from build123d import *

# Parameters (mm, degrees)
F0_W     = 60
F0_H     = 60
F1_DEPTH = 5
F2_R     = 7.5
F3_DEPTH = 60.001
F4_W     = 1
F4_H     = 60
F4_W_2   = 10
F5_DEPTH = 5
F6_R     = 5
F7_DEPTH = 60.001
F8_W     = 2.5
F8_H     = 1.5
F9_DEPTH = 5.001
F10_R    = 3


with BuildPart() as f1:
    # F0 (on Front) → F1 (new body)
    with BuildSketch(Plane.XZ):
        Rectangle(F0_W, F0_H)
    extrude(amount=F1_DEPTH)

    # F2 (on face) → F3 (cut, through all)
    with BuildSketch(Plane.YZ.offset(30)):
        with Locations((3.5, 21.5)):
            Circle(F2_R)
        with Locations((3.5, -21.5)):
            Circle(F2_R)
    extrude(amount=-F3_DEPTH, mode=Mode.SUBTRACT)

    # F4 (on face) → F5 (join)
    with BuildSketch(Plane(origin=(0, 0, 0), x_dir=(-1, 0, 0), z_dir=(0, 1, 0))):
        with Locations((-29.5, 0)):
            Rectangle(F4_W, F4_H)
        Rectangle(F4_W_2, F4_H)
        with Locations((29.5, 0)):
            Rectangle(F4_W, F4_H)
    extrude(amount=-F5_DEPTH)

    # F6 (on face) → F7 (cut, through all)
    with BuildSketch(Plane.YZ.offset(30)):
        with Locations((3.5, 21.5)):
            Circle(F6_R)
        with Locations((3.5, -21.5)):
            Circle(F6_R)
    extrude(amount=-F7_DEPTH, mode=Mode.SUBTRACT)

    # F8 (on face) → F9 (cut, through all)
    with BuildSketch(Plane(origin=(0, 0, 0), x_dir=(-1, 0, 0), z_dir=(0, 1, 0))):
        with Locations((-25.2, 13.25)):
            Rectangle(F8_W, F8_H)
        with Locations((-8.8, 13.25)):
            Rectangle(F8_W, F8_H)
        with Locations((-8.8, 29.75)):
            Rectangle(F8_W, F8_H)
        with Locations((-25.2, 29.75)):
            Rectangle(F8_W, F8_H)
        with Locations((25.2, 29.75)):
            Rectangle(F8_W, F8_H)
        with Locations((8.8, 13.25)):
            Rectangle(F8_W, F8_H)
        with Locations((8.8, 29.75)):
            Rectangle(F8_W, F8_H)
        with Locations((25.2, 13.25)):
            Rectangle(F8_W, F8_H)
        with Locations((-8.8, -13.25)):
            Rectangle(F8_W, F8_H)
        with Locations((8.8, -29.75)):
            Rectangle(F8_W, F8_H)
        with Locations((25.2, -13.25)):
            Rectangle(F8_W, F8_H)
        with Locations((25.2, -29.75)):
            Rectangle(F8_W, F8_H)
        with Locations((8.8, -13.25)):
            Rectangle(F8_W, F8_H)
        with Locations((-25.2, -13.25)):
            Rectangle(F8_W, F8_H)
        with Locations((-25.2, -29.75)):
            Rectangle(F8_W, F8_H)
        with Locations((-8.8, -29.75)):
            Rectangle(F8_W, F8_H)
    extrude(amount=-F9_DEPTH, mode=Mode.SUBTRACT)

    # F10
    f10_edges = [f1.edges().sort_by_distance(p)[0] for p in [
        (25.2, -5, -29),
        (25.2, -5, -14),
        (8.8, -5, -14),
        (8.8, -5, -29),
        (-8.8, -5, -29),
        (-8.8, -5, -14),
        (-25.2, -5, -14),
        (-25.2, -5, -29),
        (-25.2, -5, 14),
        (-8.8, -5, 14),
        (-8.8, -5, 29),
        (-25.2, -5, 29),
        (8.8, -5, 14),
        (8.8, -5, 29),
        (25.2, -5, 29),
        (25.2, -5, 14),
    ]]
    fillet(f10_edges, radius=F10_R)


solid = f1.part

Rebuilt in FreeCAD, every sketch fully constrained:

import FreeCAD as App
import Part
import Sketcher
from FreeCAD import Vector
Q = App.Units.Quantity


def edges_at(feature, points):
    """Names of the edges that pass closest to the given points."""
    edges = feature.Shape.Edges
    near = lambda p: min(range(len(edges)), key=lambda i: edges[i].distToShape(Part.Vertex(*p))[0])
    return sorted({f"Edge{near(p) + 1}" for p in points})


def add_polygon(sketch, points):
    """Adds a closed chain of lines whose ends are joined by coincident constraints."""
    first, n = sketch.GeometryCount, len(points)
    for a, b in zip(points, points[1:] + points[:1]):
        sketch.addGeometry(Part.LineSegment(App.Vector(*a, 0), App.Vector(*b, 0)), False)
    for i in range(n):
        sketch.addConstraint(Sketcher.Constraint("Coincident", first + i, 2, first + (i + 1) % n, 1))

doc = App.newDocument("Part")
body = doc.addObject("PartDesign::Body", "Body")

# Sketch on XZ plane
sketch1 = doc.addObject("Sketcher::SketchObject", "Sketch")
body.addObject(sketch1)
sketch1.AttachmentSupport = (doc.XZ_Plane, [""])
sketch1.MapMode = "FlatFace"
add_polygon(sketch1, [(-30, 30), (-30, -30), (30, -30), (30, 30)])  # lines 0-3
sketch1.addConstraint([
    Sketcher.Constraint("Vertical", 0),
    Sketcher.Constraint("Horizontal", 1),
    Sketcher.Constraint("Vertical", 2),
    Sketcher.Constraint("Horizontal", 3),
    Sketcher.Constraint("Symmetric", 0, 2, 2, 2, -1, 1),
    Sketcher.Constraint("Equal", 3, 0),
    Sketcher.Constraint("DistanceX", 1, 1, 1, 2, Q("60 mm")),
])
pad1 = doc.addObject("PartDesign::Pad", "Pad")
body.addObject(pad1)
pad1.Profile = sketch1
pad1.Length = 5

# Sketch on YZ plane
sketch2 = doc.addObject("Sketcher::SketchObject", "Sketch001")
body.addObject(sketch2)
sketch2.AttachmentSupport = (doc.YZ_Plane, [""])
sketch2.MapMode = "FlatFace"
sketch2.AttachmentOffset = App.Placement(Vector(0, 0, 30), App.Rotation())
sketch2.addGeometry([
    Part.Circle(Vector(4, 22, 0), Vector(0, 0, 1), 8),
    Part.Circle(Vector(4, -22, 0), Vector(0, 0, 1), 8),
], False)
sketch2.addConstraint([
    Sketcher.Constraint("Equal", 0, 1),
    Sketcher.Constraint("Symmetric", 0, 3, 1, 3, -1),
    Sketcher.Constraint("Diameter", 0, Q("15 mm")),
    Sketcher.Constraint("DistanceY", 1, 3, 0, 3, Q("43 mm")),
    Sketcher.Constraint("DistanceX", -1, 1, 0, 3, Q("3.5 mm")),
])
pocket1 = doc.addObject("PartDesign::Pocket", "Pocket")
body.addObject(pocket1)
pocket1.Profile = sketch2
pocket1.Type = "ThroughAll"

# Sketch on XZ plane
sketch3 = doc.addObject("Sketcher::SketchObject", "Sketch002")
body.addObject(sketch3)
sketch3.AttachmentSupport = (doc.XZ_Plane, [""])
sketch3.MapMode = "FlatFace"
add_polygon(sketch3, [(30, 30), (30, -30), (29, -30), (29, 30)])  # lines 0-3
add_polygon(sketch3, [(5, 30), (5, -30), (-5, -30), (-5, 30)])  # lines 4-7
add_polygon(sketch3, [(-29, 30), (-29, -30), (-30, -30), (-30, 30)])  # lines 8-11
sketch3.addConstraint([
    Sketcher.Constraint("Vertical", 0),
    Sketcher.Constraint("Horizontal", 1),
    Sketcher.Constraint("Vertical", 2),
    Sketcher.Constraint("Horizontal", 3),
    Sketcher.Constraint("Vertical", 4),
    Sketcher.Constraint("Horizontal", 5),
    Sketcher.Constraint("Vertical", 6),
    Sketcher.Constraint("Horizontal", 7),
    Sketcher.Constraint("Vertical", 8),
    Sketcher.Constraint("Horizontal", 9),
    Sketcher.Constraint("Vertical", 10),
    Sketcher.Constraint("Horizontal", 11),
    Sketcher.Constraint("Symmetric", 4, 2, 6, 2, -1, 1),
    Sketcher.Constraint("Symmetric", 2, 2, 8, 2, -1, 1),
    Sketcher.Constraint("Symmetric", 0, 2, 10, 2, -1, 1),
    Sketcher.Constraint("Horizontal", 1, 2, 4, 2),
    Sketcher.Constraint("Horizontal", 3, 2, 6, 2),
    Sketcher.Constraint("DistanceX", 1, 2, 1, 1, Q("1 mm")),
    Sketcher.Constraint("DistanceX", 5, 2, 5, 1, Q("10 mm")),
    Sketcher.Constraint("DistanceY", 0, 2, 0, 1, Q("60 mm")),
    Sketcher.Constraint("DistanceX", -1, 1, 0, 2, Q("30 mm")),
])
pad2 = doc.addObject("PartDesign::Pad", "Pad001")
body.addObject(pad2)
pad2.Profile = sketch3
pad2.Length = 5

# Sketch on YZ plane
sketch4 = doc.addObject("Sketcher::SketchObject", "Sketch003")
body.addObject(sketch4)
sketch4.AttachmentSupport = (doc.YZ_Plane, [""])
sketch4.MapMode = "FlatFace"
sketch4.AttachmentOffset = App.Placement(Vector(0, 0, 30), App.Rotation())
sketch4.addGeometry([
    Part.Circle(Vector(4, 22, 0), Vector(0, 0, 1), 5),
    Part.Circle(Vector(4, -22, 0), Vector(0, 0, 1), 5),
], False)
sketch4.addConstraint([
    Sketcher.Constraint("Equal", 0, 1),
    Sketcher.Constraint("Symmetric", 0, 3, 1, 3, -1),
    Sketcher.Constraint("Diameter", 0, Q("10 mm")),
    Sketcher.Constraint("DistanceY", 1, 3, 0, 3, Q("43 mm")),
    Sketcher.Constraint("DistanceX", -1, 1, 0, 3, Q("3.5 mm")),
])
pocket2 = doc.addObject("PartDesign::Pocket", "Pocket001")
body.addObject(pocket2)
pocket2.Profile = sketch4
pocket2.Type = "ThroughAll"

# Sketch on XZ plane
sketch5 = doc.addObject("Sketcher::SketchObject", "Sketch004")
body.addObject(sketch5)
sketch5.AttachmentSupport = (doc.XZ_Plane, [""])
sketch5.MapMode = "FlatFace"
add_polygon(sketch5, [(26.4, 14), (26.4, 12.5), (23.9, 12.5), (23.9, 14)])  # lines 0-3
add_polygon(sketch5, [(10.1, 14), (10.1, 12.5), (7.5, 12.5), (7.5, 14)])  # lines 4-7
add_polygon(sketch5, [(10.1, 30.5), (10.1, 29), (7.5, 29), (7.5, 30.5)])  # lines 8-11
add_polygon(sketch5, [(26.4, 30.5), (26.4, 29), (23.9, 29), (23.9, 30.5)])  # lines 12-15
add_polygon(sketch5, [(-23.9, 30.5), (-23.9, 29), (-26.4, 29), (-26.4, 30.5)])  # lines 16-19
add_polygon(sketch5, [(-7.5, 14), (-7.5, 12.5), (-10.1, 12.5), (-10.1, 14)])  # lines 20-23
add_polygon(sketch5, [(-7.5, 30.5), (-7.5, 29), (-10.1, 29), (-10.1, 30.5)])  # lines 24-27
add_polygon(sketch5, [(-23.9, 14), (-23.9, 12.5), (-26.4, 12.5), (-26.4, 14)])  # lines 28-31
add_polygon(sketch5, [(10.1, -12.5), (10.1, -14), (7.5, -14), (7.5, -12.5)])  # lines 32-35
add_polygon(sketch5, [(-7.5, -29), (-7.5, -30.5), (-10.1, -30.5), (-10.1, -29)])  # lines 36-39
add_polygon(sketch5, [(-23.9, -12.5), (-23.9, -14), (-26.4, -14), (-26.4, -12.5)])  # lines 40-43
add_polygon(sketch5, [(-23.9, -29), (-23.9, -30.5), (-26.4, -30.5), (-26.4, -29)])  # lines 44-47
add_polygon(sketch5, [(-7.5, -12.5), (-7.5, -14), (-10.1, -14), (-10.1, -12.5)])  # lines 48-51
add_polygon(sketch5, [(26.4, -12.5), (26.4, -14), (23.9, -14), (23.9, -12.5)])  # lines 52-55
add_polygon(sketch5, [(26.4, -29), (26.4, -30.5), (23.9, -30.5), (23.9, -29)])  # lines 56-59
add_polygon(sketch5, [(10.1, -29), (10.1, -30.5), (7.5, -30.5), (7.5, -29)])  # lines 60-63
sketch5.addConstraint([
    Sketcher.Constraint("Vertical", 0),
    Sketcher.Constraint("Horizontal", 1),
    Sketcher.Constraint("Vertical", 2),
    Sketcher.Constraint("Horizontal", 3),
    Sketcher.Constraint("Vertical", 4),
    Sketcher.Constraint("Horizontal", 5),
    Sketcher.Constraint("Vertical", 6),
    Sketcher.Constraint("Horizontal", 7),
    Sketcher.Constraint("Vertical", 8),
    Sketcher.Constraint("Horizontal", 9),
    Sketcher.Constraint("Vertical", 10),
    Sketcher.Constraint("Horizontal", 11),
    Sketcher.Constraint("Vertical", 12),
    Sketcher.Constraint("Horizontal", 13),
    Sketcher.Constraint("Vertical", 14),
    Sketcher.Constraint("Horizontal", 15),
    Sketcher.Constraint("Vertical", 16),
    Sketcher.Constraint("Horizontal", 17),
    Sketcher.Constraint("Vertical", 18),
    Sketcher.Constraint("Horizontal", 19),
    Sketcher.Constraint("Vertical", 20),
    Sketcher.Constraint("Horizontal", 21),
    Sketcher.Constraint("Vertical", 22),
    Sketcher.Constraint("Horizontal", 23),
    Sketcher.Constraint("Vertical", 24),
    Sketcher.Constraint("Horizontal", 25),
    Sketcher.Constraint("Vertical", 26),
    Sketcher.Constraint("Horizontal", 27),
    Sketcher.Constraint("Vertical", 28),
    Sketcher.Constraint("Horizontal", 29),
    Sketcher.Constraint("Vertical", 30),
    Sketcher.Constraint("Horizontal", 31),
    Sketcher.Constraint("Vertical", 32),
    Sketcher.Constraint("Horizontal", 33),
    Sketcher.Constraint("Vertical", 34),
    Sketcher.Constraint("Horizontal", 35),
    Sketcher.Constraint("Vertical", 36),
    Sketcher.Constraint("Horizontal", 37),
    Sketcher.Constraint("Vertical", 38),
    Sketcher.Constraint("Horizontal", 39),
    Sketcher.Constraint("Vertical", 40),
    Sketcher.Constraint("Horizontal", 41),
    Sketcher.Constraint("Vertical", 42),
    Sketcher.Constraint("Horizontal", 43),
    Sketcher.Constraint("Vertical", 44),
    Sketcher.Constraint("Horizontal", 45),
    Sketcher.Constraint("Vertical", 46),
    Sketcher.Constraint("Horizontal", 47),
    Sketcher.Constraint("Vertical", 48),
    Sketcher.Constraint("Horizontal", 49),
    Sketcher.Constraint("Vertical", 50),
    Sketcher.Constraint("Horizontal", 51),
    Sketcher.Constraint("Vertical", 52),
    Sketcher.Constraint("Horizontal", 53),
    Sketcher.Constraint("Vertical", 54),
    Sketcher.Constraint("Horizontal", 55),
    Sketcher.Constraint("Vertical", 56),
    Sketcher.Constraint("Horizontal", 57),
    Sketcher.Constraint("Vertical", 58),
    Sketcher.Constraint("Horizontal", 59),
    Sketcher.Constraint("Vertical", 60),
    Sketcher.Constraint("Horizontal", 61),
    Sketcher.Constraint("Vertical", 62),
    Sketcher.Constraint("Horizontal", 63),
    Sketcher.Constraint("Symmetric", 22, 2, 32, 2, -1, 1),
    Sketcher.Constraint("Symmetric", 20, 2, 34, 2, -1, 1),
    Sketcher.Constraint("Symmetric", 10, 2, 36, 2, -1, 1),
    Sketcher.Constraint("Symmetric", 8, 2, 38, 2, -1, 1),
    Sketcher.Constraint("Symmetric", 2, 2, 40, 2, -1, 1),
    Sketcher.Constraint("Symmetric", 0, 2, 42, 2, -1, 1),
    Sketcher.Constraint("Symmetric", 14, 2, 44, 2, -1, 1),
    Sketcher.Constraint("Symmetric", 12, 2, 46, 2, -1, 1),
    Sketcher.Constraint("Symmetric", 6, 2, 48, 2, -1, 1),
    Sketcher.Constraint("Symmetric", 4, 2, 50, 2, -1, 1),
    Sketcher.Constraint("Symmetric", 30, 2, 52, 2, -1, 1),
    Sketcher.Constraint("Symmetric", 28, 2, 54, 2, -1, 1),
    Sketcher.Constraint("Symmetric", 18, 2, 56, 2, -1, 1),
    Sketcher.Constraint("Symmetric", 16, 2, 58, 2, -1, 1),
    Sketcher.Constraint("Symmetric", 26, 2, 60, 2, -1, 1),
    Sketcher.Constraint("Symmetric", 24, 2, 62, 2, -1, 1),
    Sketcher.Constraint("Symmetric", 13, 2, 16, 2, -2),
    Sketcher.Constraint("Symmetric", 15, 2, 18, 2, -2),
    Sketcher.Constraint("Symmetric", 5, 2, 20, 2, -2),
    Sketcher.Constraint("Symmetric", 7, 2, 22, 2, -2),
    Sketcher.Constraint("Symmetric", 9, 2, 24, 2, -2),
    Sketcher.Constraint("Symmetric", 11, 2, 26, 2, -2),
    Sketcher.Constraint("Symmetric", 1, 2, 28, 2, -2),
    Sketcher.Constraint("Symmetric", 3, 2, 30, 2, -2),
    Sketcher.Constraint("Horizontal", 1, 2, 4, 2),
    Sketcher.Constraint("Horizontal", 3, 2, 6, 2),
    Sketcher.Constraint("Horizontal", 9, 2, 12, 2),
    Sketcher.Constraint("Horizontal", 11, 2, 14, 2),
    Sketcher.Constraint("Vertical", 7, 2, 8, 2),
    Sketcher.Constraint("Vertical", 6, 2, 9, 2),
    Sketcher.Constraint("Vertical", 3, 2, 12, 2),
    Sketcher.Constraint("Vertical", 2, 2, 13, 2),
    Sketcher.Constraint("Equal", 3, 5),
    Sketcher.Constraint("Equal", 6, 8),
    Sketcher.Constraint("DistanceX", 1, 2, 1, 1, Q("2.5 mm")),
    Sketcher.Constraint("DistanceY", 0, 2, 0, 1, Q("1.5 mm")),
    Sketcher.Constraint("DistanceY", -1, 1, 2, 2, Q("14 mm")),
    Sketcher.Constraint("DistanceY", -1, 1, 8, 2, Q("29 mm")),
    Sketcher.Constraint("DistanceX", -1, 1, 0, 2, Q("26.45 mm")),
    Sketcher.Constraint("DistanceX", -1, 1, 4, 2, Q("10.05 mm")),
])
pocket3 = doc.addObject("PartDesign::Pocket", "Pocket002")
body.addObject(pocket3)
pocket3.Profile = sketch5
pocket3.Type = "ThroughAll"
pocket3.Reversed = True
doc.recompute()

fillet = doc.addObject("PartDesign::Fillet", "Fillet")
body.addObject(fillet)
fillet.Base = (pocket3, edges_at(pocket3, [
    (25.2, -5, -29),
    (25.2, -5, -14),
    (8.8, -5, -14),
    (8.8, -5, -29),
    (-8.8, -5, -29),
    (-8.8, -5, -14),
    (-25.2, -5, -14),
    (-25.2, -5, -29),
    (-25.2, -5, 14),
    (-8.8, -5, 14),
    (-8.8, -5, 29),
    (-25.2, -5, 29),
    (8.8, -5, 14),
    (8.8, -5, 29),
    (25.2, -5, 29),
    (25.2, -5, 14),
]))
fillet.Radius = 3

doc.recompute()
